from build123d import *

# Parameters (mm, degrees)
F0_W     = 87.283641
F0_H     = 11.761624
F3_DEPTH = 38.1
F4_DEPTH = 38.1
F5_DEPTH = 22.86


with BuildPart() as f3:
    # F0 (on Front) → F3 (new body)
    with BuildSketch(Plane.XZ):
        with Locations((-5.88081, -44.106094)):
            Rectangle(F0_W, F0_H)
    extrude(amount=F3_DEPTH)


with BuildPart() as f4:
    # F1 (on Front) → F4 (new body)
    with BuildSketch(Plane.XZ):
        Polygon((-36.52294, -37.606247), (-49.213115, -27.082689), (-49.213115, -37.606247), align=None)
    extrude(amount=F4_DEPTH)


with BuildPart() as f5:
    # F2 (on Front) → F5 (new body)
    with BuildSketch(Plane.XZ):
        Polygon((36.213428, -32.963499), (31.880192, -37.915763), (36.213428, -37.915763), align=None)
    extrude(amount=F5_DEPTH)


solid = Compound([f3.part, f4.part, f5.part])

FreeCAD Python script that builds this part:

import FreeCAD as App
import Part
import Sketcher
Q = App.Units.Quantity

doc = App.newDocument("Part")
params = doc.addObject("Spreadsheet::Sheet", "Params")
for row, (alias, value) in enumerate([
    ("pad1_length", "1.5 in"),
    ("pad2_length", "1.5 in"),
    ("pad3_length", "0.9 in"),
], start=1):
    params.set(f"A{row}", alias)
    params.set(f"B{row}", "=" + value)
    params.setAlias(f"B{row}", alias)

body = doc.addObject("PartDesign::Body", "Body")

# Sketch on XZ plane
sketch1 = doc.addObject("Sketcher::SketchObject", "Sketch")
body.addObject(sketch1)
sketch1.AttachmentSupport = (doc.XZ_Plane, [""])
sketch1.MapMode = "FlatFace"
sketch1.addGeometry(Part.LineSegment(App.Vector(-49.52263, -38.225282, 0), App.Vector(-49.52263, -49.986906, 0)), False)
sketch1.addGeometry(Part.LineSegment(App.Vector(-49.52263, -49.986906, 0), App.Vector(37.76101, -49.986906, 0)), False)
sketch1.addGeometry(Part.LineSegment(App.Vector(37.76101, -49.986906, 0), App.Vector(37.76101, -38.225282, 0)), False)
sketch1.addGeometry(Part.LineSegment(App.Vector(37.76101, -38.225282, 0), App.Vector(-49.52263, -38.225282, 0)), False)
sketch1.addConstraint(Sketcher.Constraint("Coincident", 0, 2, 1, 1))
sketch1.addConstraint(Sketcher.Constraint("Coincident", 1, 2, 2, 1))
sketch1.addConstraint(Sketcher.Constraint("Coincident", 2, 2, 3, 1))
sketch1.addConstraint(Sketcher.Constraint("Coincident", 3, 2, 0, 1))
sketch1.addConstraint(Sketcher.Constraint("Vertical", 0))
sketch1.addConstraint(Sketcher.Constraint("Horizontal", 1))
sketch1.addConstraint(Sketcher.Constraint("Vertical", 2))
sketch1.addConstraint(Sketcher.Constraint("Horizontal", 3))
sketch1.addConstraint(Sketcher.Constraint("DistanceX", 1, 1, 1, 2, Q("87.283641 mm")))
sketch1.addConstraint(Sketcher.Constraint("DistanceY", 0, 2, 0, 1, Q("11.761624 mm")))
sketch1.addConstraint(Sketcher.Constraint("DistanceX", 0, 2, -1, 1, Q("49.52263 mm")))
sketch1.addConstraint(Sketcher.Constraint("DistanceY", 0, 2, -1, 1, Q("49.986906 mm")))
pad1 = doc.addObject("PartDesign::Pad", "Pad")
body.addObject(pad1)
pad1.Profile = sketch1
pad1.setExpression("Length", "Params.pad1_length")
body2 = doc.addObject("PartDesign::Body", "Body001")

# Sketch on XZ plane
sketch2 = doc.addObject("Sketcher::SketchObject", "Sketch001")
body2.addObject(sketch2)
sketch2.AttachmentSupport = (doc.getObject("XZ_Plane001"), [""])
sketch2.MapMode = "FlatFace"
sketch2.addGeometry(Part.LineSegment(App.Vector(-36.52294, -37.606247, 0), App.Vector(-49.213115, -27.082689, 0)), False)
sketch2.addGeometry(Part.LineSegment(App.Vector(-49.213115, -27.082689, 0), App.Vector(-49.213115, -37.606247, 0)), False)
sketch2.addGeometry(Part.LineSegment(App.Vector(-49.213115, -37.606247, 0), App.Vector(-36.52294, -37.606247, 0)), False)
sketch2.addConstraint(Sketcher.Constraint("Coincident", 0, 2, 1, 1))
sketch2.addConstraint(Sketcher.Constraint("Coincident", 1, 2, 2, 1))
sketch2.addConstraint(Sketcher.Constraint("Coincident", 2, 2, 0, 1))
sketch2.addConstraint(Sketcher.Constraint("Vertical", 1))
sketch2.addConstraint(Sketcher.Constraint("Horizontal", 2))
sketch2.addConstraint(Sketcher.Constraint("DistanceY", 1, 2, 1, 1, Q("10.523558 mm")))
sketch2.addConstraint(Sketcher.Constraint("DistanceX", 2, 1, 2, 2, Q("12.690175 mm")))
sketch2.addConstraint(Sketcher.Constraint("DistanceY", 0, 2, -1, 1, Q("27.082689 mm")))
sketch2.addConstraint(Sketcher.Constraint("DistanceX", 2, 2, -1, 1, Q("36.52294 mm")))
pad2 = doc.addObject("PartDesign::Pad", "Pad001")
body2.addObject(pad2)
pad2.Profile = sketch2
pad2.setExpression("Length", "Params.pad2_length")
body3 = doc.addObject("PartDesign::Body", "Body002")

# Sketch on XZ plane
sketch3 = doc.addObject("Sketcher::SketchObject", "Sketch002")
body3.addObject(sketch3)
sketch3.AttachmentSupport = (doc.getObject("XZ_Plane002"), [""])
sketch3.MapMode = "FlatFace"
sketch3.addGeometry(Part.LineSegment(App.Vector(36.213428, -32.963499, 0), App.Vector(31.880192, -37.915763, 0)), False)
sketch3.addGeometry(Part.LineSegment(App.Vector(31.880192, -37.915763, 0), App.Vector(36.213428, -37.915763, 0)), False)
sketch3.addGeometry(Part.LineSegment(App.Vector(36.213428, -37.915763, 0), App.Vector(36.213428, -32.963499, 0)), False)
sketch3.addConstraint(Sketcher.Constraint("Coincident", 0, 2, 1, 1))
sketch3.addConstraint(Sketcher.Constraint("Coincident", 1, 2, 2, 1))
sketch3.addConstraint(Sketcher.Constraint("Coincident", 2, 2, 0, 1))
sketch3.addConstraint(Sketcher.Constraint("Horizontal", 1))
sketch3.addConstraint(Sketcher.Constraint("Vertical", 2))
sketch3.addConstraint(Sketcher.Constraint("DistanceX", 1, 1, 1, 2, Q("0.1705998 in")))
sketch3.addConstraint(Sketcher.Constraint("DistanceY", 2, 2, -1, 1, Q("32.963499 mm")))
sketch3.addConstraint(Sketcher.Constraint("DistanceY", 2, 1, 2, 2, Q("4.952264 mm")))
sketch3.addConstraint(Sketcher.Constraint("DistanceX", -1, 1, 0, 2, Q("31.880192 mm")))
pad3 = doc.addObject("PartDesign::Pad", "Pad002")
body3.addObject(pad3)
pad3.Profile = sketch3
pad3.setExpression("Length", "Params.pad3_length")

doc.recompute()
